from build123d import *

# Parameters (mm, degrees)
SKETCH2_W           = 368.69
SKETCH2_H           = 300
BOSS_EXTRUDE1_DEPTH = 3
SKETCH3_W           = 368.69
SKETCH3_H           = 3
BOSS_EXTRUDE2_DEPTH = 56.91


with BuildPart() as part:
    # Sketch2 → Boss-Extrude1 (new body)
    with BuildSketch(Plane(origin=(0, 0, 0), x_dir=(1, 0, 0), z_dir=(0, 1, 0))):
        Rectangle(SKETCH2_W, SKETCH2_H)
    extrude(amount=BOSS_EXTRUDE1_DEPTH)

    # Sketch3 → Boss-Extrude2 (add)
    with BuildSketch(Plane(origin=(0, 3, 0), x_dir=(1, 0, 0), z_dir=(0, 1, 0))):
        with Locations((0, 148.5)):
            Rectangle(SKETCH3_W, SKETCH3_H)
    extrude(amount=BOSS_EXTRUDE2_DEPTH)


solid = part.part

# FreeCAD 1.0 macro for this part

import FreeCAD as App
import Part
import Sketcher

V = App.Vector
Q = App.Units.Quantity

doc = App.newDocument("Part")
body = doc.addObject("PartDesign::Body", "Body")

sketch1 = doc.addObject("Sketcher::SketchObject", "Sketch")
body.addObject(sketch1)
sketch1.AttachmentSupport = (doc.XZ_Plane, [""])
sketch1.MapMode = "FlatFace"
sketch1.addGeometry(Part.LineSegment(V(-184.345, -150, 0), V(-184.345, 150, 0)), False)
sketch1.addGeometry(Part.LineSegment(V(-184.345, 150, 0), V(184.345, 150, 0)), False)
sketch1.addGeometry(Part.LineSegment(V(184.345, 150, 0), V(184.345, -150, 0)), False)
sketch1.addGeometry(Part.LineSegment(V(184.345, -150, 0), V(-184.345, -150, 0)), False)
sketch1.addConstraint(Sketcher.Constraint("Coincident", 0, 2, 1, 1))
sketch1.addConstraint(Sketcher.Constraint("Coincident", 1, 2, 2, 1))
sketch1.addConstraint(Sketcher.Constraint("Coincident", 2, 2, 3, 1))
sketch1.addConstraint(Sketcher.Constraint("Coincident", 3, 2, 0, 1))
sketch1.addConstraint(Sketcher.Constraint("Vertical", 0))
sketch1.addConstraint(Sketcher.Constraint("Horizontal", 1))
sketch1.addConstraint(Sketcher.Constraint("Vertical", 2))
sketch1.addConstraint(Sketcher.Constraint("Horizontal", 3))
sketch1.addConstraint(Sketcher.Constraint("Symmetric", 0, 2, 2, 2, -1, 1))
sketch1.addConstraint(Sketcher.Constraint("DistanceY", 0, 1, 0, 2, Q("300 mm")))
sketch1.addConstraint(Sketcher.Constraint("DistanceX", 1, 1, 1, 2, Q("368.69 mm")))
pad1 = doc.addObject("PartDesign::Pad", "Pad")
body.addObject(pad1)
pad1.Profile = sketch1
pad1.Length = 3
pad1.Reversed = True

sketch2 = doc.addObject("Sketcher::SketchObject", "Sketch001")
body.addObject(sketch2)
sketch2.AttachmentSupport = (doc.XZ_Plane, [""])
sketch2.MapMode = "FlatFace"
sketch2.AttachmentOffset = App.Placement(V(0, 0, -3), App.Rotation())
sketch2.addGeometry(Part.LineSegment(V(-184.345, -150, 0), V(-184.345, -147, 0)), False)
sketch2.addGeometry(Part.LineSegment(V(-184.345, -147, 0), V(184.345, -147, 0)), False)
sketch2.addGeometry(Part.LineSegment(V(184.345, -147, 0), V(184.345, -150, 0)), False)
sketch2.addGeometry(Part.LineSegment(V(184.345, -150, 0), V(-184.345, -150, 0)), False)
sketch2.addConstraint(Sketcher.Constraint("Coincident", 0, 2, 1, 1))
sketch2.addConstraint(Sketcher.Constraint("Coincident", 1, 2, 2, 1))
sketch2.addConstraint(Sketcher.Constraint("Coincident", 2, 2, 3, 1))
sketch2.addConstraint(Sketcher.Constraint("Coincident", 3, 2, 0, 1))
sketch2.addConstraint(Sketcher.Constraint("Vertical", 0))
sketch2.addConstraint(Sketcher.Constraint("Horizontal", 1))
sketch2.addConstraint(Sketcher.Constraint("Vertical", 2))
sketch2.addConstraint(Sketcher.Constraint("Horizontal", 3))
sketch2.addConstraint(Sketcher.Constraint("DistanceY", 0, 1, 0, 2, Q("3 mm")))
sketch2.addConstraint(Sketcher.Constraint("DistanceY", 0, 2, -1, 1, Q("147 mm")))
sketch2.addConstraint(Sketcher.Constraint("DistanceX", 1, 1, 1, 2, Q("368.69 mm")))
sketch2.addConstraint(Sketcher.Constraint("DistanceX", 0, 2, -1, 1, Q("184.345 mm")))
pad2 = doc.addObject("PartDesign::Pad", "Pad001")
body.addObject(pad2)
pad2.Profile = sketch2
pad2.Length = 56.91
pad2.Reversed = True

doc.recompute()
